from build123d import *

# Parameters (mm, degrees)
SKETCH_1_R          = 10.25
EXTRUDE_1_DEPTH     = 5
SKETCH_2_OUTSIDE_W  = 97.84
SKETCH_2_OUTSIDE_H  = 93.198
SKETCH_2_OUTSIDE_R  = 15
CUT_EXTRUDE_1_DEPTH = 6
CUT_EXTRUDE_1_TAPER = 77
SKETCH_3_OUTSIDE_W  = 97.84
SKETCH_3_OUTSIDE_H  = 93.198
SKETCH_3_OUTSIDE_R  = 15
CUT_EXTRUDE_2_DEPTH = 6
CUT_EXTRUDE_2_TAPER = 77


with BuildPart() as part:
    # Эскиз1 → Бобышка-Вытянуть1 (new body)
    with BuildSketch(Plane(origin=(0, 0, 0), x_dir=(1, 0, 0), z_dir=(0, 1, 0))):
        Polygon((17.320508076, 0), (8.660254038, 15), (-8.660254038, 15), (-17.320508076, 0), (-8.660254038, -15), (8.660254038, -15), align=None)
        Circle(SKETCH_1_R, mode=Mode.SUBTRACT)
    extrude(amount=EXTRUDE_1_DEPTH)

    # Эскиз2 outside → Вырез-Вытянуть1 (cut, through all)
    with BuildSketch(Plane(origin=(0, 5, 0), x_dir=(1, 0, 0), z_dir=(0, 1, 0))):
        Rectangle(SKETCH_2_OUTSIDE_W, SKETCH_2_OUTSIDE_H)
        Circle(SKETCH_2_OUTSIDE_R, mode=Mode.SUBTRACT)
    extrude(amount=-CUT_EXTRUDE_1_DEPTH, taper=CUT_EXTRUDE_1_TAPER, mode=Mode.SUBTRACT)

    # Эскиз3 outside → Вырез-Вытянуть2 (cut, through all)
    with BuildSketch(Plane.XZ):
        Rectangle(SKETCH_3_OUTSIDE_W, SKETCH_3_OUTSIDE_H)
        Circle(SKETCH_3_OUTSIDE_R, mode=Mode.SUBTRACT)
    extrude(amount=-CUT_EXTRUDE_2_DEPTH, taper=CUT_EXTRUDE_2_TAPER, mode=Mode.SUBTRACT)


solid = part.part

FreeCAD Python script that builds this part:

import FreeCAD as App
import Part
import Sketcher
Q = App.Units.Quantity

doc = App.newDocument("Part")
body = doc.addObject("PartDesign::Body", "Body")

sketch1 = body.newObject("Sketcher::SketchObject", "Sketch")
sketch1.AttachmentSupport = (doc.getObject("XZ_Plane"), [""])
sketch1.MapMode = "FlatFace"
sketch1.addGeometry(Part.LineSegment(App.Vector(17, 0, 0), App.Vector(9, -15, 0)), False)
sketch1.addGeometry(Part.LineSegment(App.Vector(9, -15, 0), App.Vector(-9, -15, 0)), False)
sketch1.addGeometry(Part.LineSegment(App.Vector(-9, -15, 0), App.Vector(-17, 0, 0)), False)
sketch1.addGeometry(Part.LineSegment(App.Vector(-17, 0, 0), App.Vector(-9, 15, 0)), False)
sketch1.addGeometry(Part.LineSegment(App.Vector(-9, 15, 0), App.Vector(9, 15, 0)), False)
sketch1.addGeometry(Part.LineSegment(App.Vector(9, 15, 0), App.Vector(17, 0, 0)), False)
sketch1.addGeometry(Part.Circle(App.Vector(0, 0, 0), App.Vector(0, 0, 1), 10), False)
sketch1.addConstraint(Sketcher.Constraint("Coincident", 0, 2, 1, 1))
sketch1.addConstraint(Sketcher.Constraint("Coincident", 1, 2, 2, 1))
sketch1.addConstraint(Sketcher.Constraint("Coincident", 2, 2, 3, 1))
sketch1.addConstraint(Sketcher.Constraint("Coincident", 3, 2, 4, 1))
sketch1.addConstraint(Sketcher.Constraint("Coincident", 4, 2, 5, 1))
sketch1.addConstraint(Sketcher.Constraint("Coincident", 5, 2, 0, 1))
sketch1.addConstraint(Sketcher.Constraint("Horizontal", 1))
sketch1.addConstraint(Sketcher.Constraint("Horizontal", 4))
sketch1.addConstraint(Sketcher.Constraint("Coincident", 6, 3, -1, 1))
sketch1.addConstraint(Sketcher.Constraint("Symmetric", 0, 2, 3, 2, -1, 1))
sketch1.addConstraint(Sketcher.Constraint("Symmetric", 2, 2, 5, 2, -1, 1))
sketch1.addConstraint(Sketcher.Constraint("PointOnObject", 2, 2, -1))
sketch1.addConstraint(Sketcher.Constraint("Parallel", 2, 5))
sketch1.addConstraint(Sketcher.Constraint("Vertical", 1, 2, 3, 2))
sketch1.addConstraint(Sketcher.Constraint("Diameter", 6, Q("20.5 mm")))
sketch1.addConstraint(Sketcher.Constraint("Angle", 0, Q("-120 deg")))
sketch1.addConstraint(Sketcher.Constraint("DistanceY", 0, 2, -1, 1, Q("15 mm")))
sketch1.addConstraint(Sketcher.Constraint("DistanceX", 1, 2, 1, 1, Q("17.320508 mm")))
pad1 = body.newObject("PartDesign::Pad", "Pad")
pad1.Profile = sketch1
pad1.Length = 5
pad1.Reversed = True

sketch2 = body.newObject("Sketcher::SketchObject", "Sketch001")
sketch2.AttachmentSupport = (doc.getObject("XZ_Plane"), [""])
sketch2.MapMode = "FlatFace"
sketch2.AttachmentOffset = App.Placement(App.Vector(0, 0, -5), App.Rotation())
sketch2.addGeometry(Part.LineSegment(App.Vector(-49, -47, 0), App.Vector(-49, 47, 0)), False)
sketch2.addGeometry(Part.LineSegment(App.Vector(-49, 47, 0), App.Vector(49, 47, 0)), False)
sketch2.addGeometry(Part.LineSegment(App.Vector(49, 47, 0), App.Vector(49, -47, 0)), False)
sketch2.addGeometry(Part.LineSegment(App.Vector(49, -47, 0), App.Vector(-49, -47, 0)), False)
sketch2.addGeometry(Part.Circle(App.Vector(0, 0, 0), App.Vector(0, 0, 1), 15), False)
sketch2.addConstraint(Sketcher.Constraint("Coincident", 0, 2, 1, 1))
sketch2.addConstraint(Sketcher.Constraint("Coincident", 1, 2, 2, 1))
sketch2.addConstraint(Sketcher.Constraint("Coincident", 2, 2, 3, 1))
sketch2.addConstraint(Sketcher.Constraint("Coincident", 3, 2, 0, 1))
sketch2.addConstraint(Sketcher.Constraint("Vertical", 0))
sketch2.addConstraint(Sketcher.Constraint("Horizontal", 1))
sketch2.addConstraint(Sketcher.Constraint("Vertical", 2))
sketch2.addConstraint(Sketcher.Constraint("Horizontal", 3))
sketch2.addConstraint(Sketcher.Constraint("Coincident", 4, 3, -1, 1))
sketch2.addConstraint(Sketcher.Constraint("Symmetric", 0, 2, 2, 2, -1, 1))
sketch2.addConstraint(Sketcher.Constraint("Diameter", 4, Q("30 mm")))
sketch2.addConstraint(Sketcher.Constraint("DistanceX", 1, 1, 1, 2, Q("97.84 mm")))
sketch2.addConstraint(Sketcher.Constraint("DistanceY", 0, 1, 0, 2, Q("93.198 mm")))
pocket1 = body.newObject("PartDesign::Pocket", "Pocket")
pocket1.Profile = sketch2
pocket1.Length = 6
pocket1.Reversed = True
pocket1.TaperAngle = 77

sketch3 = body.newObject("Sketcher::SketchObject", "Sketch002")
sketch3.AttachmentSupport = (doc.getObject("XZ_Plane"), [""])
sketch3.MapMode = "FlatFace"
sketch3.addGeometry(Part.LineSegment(App.Vector(-49, 47, 0), App.Vector(-49, -47, 0)), False)
sketch3.addGeometry(Part.LineSegment(App.Vector(-49, -47, 0), App.Vector(49, -47, 0)), False)
sketch3.addGeometry(Part.LineSegment(App.Vector(49, -47, 0), App.Vector(49, 47, 0)), False)
sketch3.addGeometry(Part.LineSegment(App.Vector(49, 47, 0), App.Vector(-49, 47, 0)), False)
sketch3.addGeometry(Part.Circle(App.Vector(0, 0, 0), App.Vector(0, 0, 1), 15), False)
sketch3.addConstraint(Sketcher.Constraint("Coincident", 0, 2, 1, 1))
sketch3.addConstraint(Sketcher.Constraint("Coincident", 1, 2, 2, 1))
sketch3.addConstraint(Sketcher.Constraint("Coincident", 2, 2, 3, 1))
sketch3.addConstraint(Sketcher.Constraint("Coincident", 3, 2, 0, 1))
sketch3.addConstraint(Sketcher.Constraint("Vertical", 0))
sketch3.addConstraint(Sketcher.Constraint("Horizontal", 1))
sketch3.addConstraint(Sketcher.Constraint("Vertical", 2))
sketch3.addConstraint(Sketcher.Constraint("Horizontal", 3))
sketch3.addConstraint(Sketcher.Constraint("Coincident", 4, 3, -1, 1))
sketch3.addConstraint(Sketcher.Constraint("Symmetric", 0, 2, 2, 2, -1, 1))
sketch3.addConstraint(Sketcher.Constraint("Diameter", 4, Q("30 mm")))
sketch3.addConstraint(Sketcher.Constraint("DistanceX", 1, 1, 1, 2, Q("97.84 mm")))
sketch3.addConstraint(Sketcher.Constraint("DistanceY", 0, 2, 0, 1, Q("93.198 mm")))
pocket2 = body.newObject("PartDesign::Pocket", "Pocket001")
pocket2.Profile = sketch3
pocket2.Length = 6
pocket2.TaperAngle = 77

doc.recompute()
